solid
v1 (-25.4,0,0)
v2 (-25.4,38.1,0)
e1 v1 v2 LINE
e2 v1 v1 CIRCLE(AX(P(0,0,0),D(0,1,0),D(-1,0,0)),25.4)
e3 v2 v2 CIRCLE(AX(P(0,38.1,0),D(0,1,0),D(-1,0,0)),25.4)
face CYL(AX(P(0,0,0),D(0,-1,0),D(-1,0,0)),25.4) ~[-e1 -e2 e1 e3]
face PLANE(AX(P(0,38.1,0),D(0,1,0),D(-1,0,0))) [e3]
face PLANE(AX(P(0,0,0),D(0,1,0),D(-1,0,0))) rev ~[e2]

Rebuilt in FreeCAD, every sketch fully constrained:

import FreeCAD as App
import Part
import Sketcher
from FreeCAD import Vector
Q = App.Units.Quantity

doc = App.newDocument("Part")
body = doc.addObject("PartDesign::Body", "Body")

# Sketch on XZ plane
sketch1 = body.newObject("Sketcher::SketchObject", "Sketch")
sketch1.AttachmentSupport = (doc.getObject("XZ_Plane"), [""])
sketch1.MapMode = "FlatFace"
sketch1.addGeometry(Part.Circle(Vector(0, 0, 0), Vector(0, 0, 1), 25), False)
sketch1.addConstraint([
    Sketcher.Constraint("Coincident", 0, 3, -1, 1),
    Sketcher.Constraint("Diameter", 0, Q("2 in")),
])
pad1 = body.newObject("PartDesign::Pad", "Pad")
pad1.Profile = sketch1
pad1.Length = Q("1.5 in")
pad1.Reversed = True

doc.recompute()
